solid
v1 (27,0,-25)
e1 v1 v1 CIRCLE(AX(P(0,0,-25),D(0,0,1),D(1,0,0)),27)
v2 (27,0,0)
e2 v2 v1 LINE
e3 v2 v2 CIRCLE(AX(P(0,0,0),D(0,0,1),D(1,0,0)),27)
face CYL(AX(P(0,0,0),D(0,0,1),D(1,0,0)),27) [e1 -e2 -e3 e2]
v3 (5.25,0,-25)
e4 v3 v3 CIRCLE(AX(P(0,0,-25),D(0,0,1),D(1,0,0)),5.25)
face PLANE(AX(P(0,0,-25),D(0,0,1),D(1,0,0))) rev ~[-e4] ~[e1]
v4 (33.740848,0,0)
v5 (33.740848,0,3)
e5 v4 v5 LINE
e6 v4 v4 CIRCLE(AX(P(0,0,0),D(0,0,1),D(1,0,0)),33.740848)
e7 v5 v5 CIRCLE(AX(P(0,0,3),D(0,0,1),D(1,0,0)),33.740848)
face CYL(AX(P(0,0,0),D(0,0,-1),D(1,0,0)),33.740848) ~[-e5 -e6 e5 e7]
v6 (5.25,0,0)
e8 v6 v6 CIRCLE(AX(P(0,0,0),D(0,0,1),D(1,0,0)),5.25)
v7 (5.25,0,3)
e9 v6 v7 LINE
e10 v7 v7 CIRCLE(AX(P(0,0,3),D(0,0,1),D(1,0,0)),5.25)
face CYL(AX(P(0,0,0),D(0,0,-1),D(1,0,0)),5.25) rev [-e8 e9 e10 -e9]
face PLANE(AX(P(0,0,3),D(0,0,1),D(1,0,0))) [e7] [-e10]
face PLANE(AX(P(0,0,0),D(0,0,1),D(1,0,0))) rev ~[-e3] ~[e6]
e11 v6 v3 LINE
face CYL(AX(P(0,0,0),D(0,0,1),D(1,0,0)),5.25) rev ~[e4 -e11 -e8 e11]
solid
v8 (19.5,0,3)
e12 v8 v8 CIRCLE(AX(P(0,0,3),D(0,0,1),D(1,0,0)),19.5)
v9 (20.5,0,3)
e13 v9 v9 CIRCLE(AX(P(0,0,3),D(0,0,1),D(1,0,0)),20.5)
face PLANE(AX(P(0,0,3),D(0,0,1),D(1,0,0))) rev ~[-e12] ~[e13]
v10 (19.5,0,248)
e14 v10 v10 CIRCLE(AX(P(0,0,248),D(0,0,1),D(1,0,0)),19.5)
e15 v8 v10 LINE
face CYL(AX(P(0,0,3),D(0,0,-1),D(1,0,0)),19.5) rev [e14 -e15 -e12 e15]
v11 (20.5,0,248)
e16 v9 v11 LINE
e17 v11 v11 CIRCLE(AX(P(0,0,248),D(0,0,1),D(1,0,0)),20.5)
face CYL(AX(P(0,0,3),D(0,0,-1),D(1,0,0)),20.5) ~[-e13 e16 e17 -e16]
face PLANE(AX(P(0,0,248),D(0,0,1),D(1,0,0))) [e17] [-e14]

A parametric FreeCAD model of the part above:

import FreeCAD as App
import Part
import Sketcher

V = App.Vector
Q = App.Units.Quantity

doc = App.newDocument("Part")
body = doc.addObject("PartDesign::Body", "Body")

sketch1 = body.newObject("Sketcher::SketchObject", "Sketch")
sketch1.AttachmentSupport = (doc.getObject("XY_Plane"), [""])
sketch1.MapMode = "FlatFace"
sketch1.addGeometry([
    Part.Circle(V(0, 0, 0), V(0, 0, 1), 34),
    Part.Circle(V(0, 0, 0), V(0, 0, 1), 5),
], False)
sketch1.addConstraint([
    Sketcher.Constraint("Coincident", 0, 3, -1, 1),
    Sketcher.Constraint("Coincident", 1, 3, -1, 1),
    Sketcher.Constraint("Diameter", 1, Q("10.5 mm")),
    Sketcher.Constraint("Diameter", 0, Q("67.481696 mm")),
])
pad1 = body.newObject("PartDesign::Pad", "Pad")
pad1.Profile = sketch1
pad1.Length = 3

sketch2 = body.newObject("Sketcher::SketchObject", "Sketch001")
sketch2.AttachmentSupport = (doc.getObject("XY_Plane"), [""])
sketch2.MapMode = "FlatFace"
sketch2.addGeometry([
    Part.Circle(V(0, 0, 0), V(0, 0, 1), 27),
    Part.Circle(V(0, 0, 0), V(0, 0, 1), 5),
], False)
sketch2.addConstraint([
    Sketcher.Constraint("Coincident", 0, 3, -1, 1),
    Sketcher.Constraint("Coincident", 1, 3, -1, 1),
    Sketcher.Constraint("Diameter", 0, Q("54 mm")),
    Sketcher.Constraint("Diameter", 1, Q("10.5 mm")),
])
pad2 = body.newObject("PartDesign::Pad", "Pad001")
pad2.Profile = sketch2
pad2.Length = 25
pad2.Reversed = True
body2 = doc.addObject("PartDesign::Body", "Body001")

sketch3 = body2.newObject("Sketcher::SketchObject", "Sketch002")
sketch3.AttachmentSupport = (doc.getObject("XY_Plane001"), [""])
sketch3.MapMode = "FlatFace"
sketch3.AttachmentOffset = App.Placement(V(0, 0, 3), App.Rotation())
sketch3.addGeometry([
    Part.Circle(V(0, 0, 0), V(0, 0, 1), 20),
    Part.Circle(V(0, 0, 0), V(0, 0, 1), 20),
], False)
sketch3.addConstraint([
    Sketcher.Constraint("Coincident", 0, 3, -1, 1),
    Sketcher.Constraint("Coincident", 1, 3, -1, 1),
    Sketcher.Constraint("Diameter", 0, Q("41 mm")),
    Sketcher.Constraint("Diameter", 1, Q("39 mm")),
])
pad3 = body2.newObject("PartDesign::Pad", "Pad002")
pad3.Profile = sketch3
pad3.Length = 245

doc.recompute()
